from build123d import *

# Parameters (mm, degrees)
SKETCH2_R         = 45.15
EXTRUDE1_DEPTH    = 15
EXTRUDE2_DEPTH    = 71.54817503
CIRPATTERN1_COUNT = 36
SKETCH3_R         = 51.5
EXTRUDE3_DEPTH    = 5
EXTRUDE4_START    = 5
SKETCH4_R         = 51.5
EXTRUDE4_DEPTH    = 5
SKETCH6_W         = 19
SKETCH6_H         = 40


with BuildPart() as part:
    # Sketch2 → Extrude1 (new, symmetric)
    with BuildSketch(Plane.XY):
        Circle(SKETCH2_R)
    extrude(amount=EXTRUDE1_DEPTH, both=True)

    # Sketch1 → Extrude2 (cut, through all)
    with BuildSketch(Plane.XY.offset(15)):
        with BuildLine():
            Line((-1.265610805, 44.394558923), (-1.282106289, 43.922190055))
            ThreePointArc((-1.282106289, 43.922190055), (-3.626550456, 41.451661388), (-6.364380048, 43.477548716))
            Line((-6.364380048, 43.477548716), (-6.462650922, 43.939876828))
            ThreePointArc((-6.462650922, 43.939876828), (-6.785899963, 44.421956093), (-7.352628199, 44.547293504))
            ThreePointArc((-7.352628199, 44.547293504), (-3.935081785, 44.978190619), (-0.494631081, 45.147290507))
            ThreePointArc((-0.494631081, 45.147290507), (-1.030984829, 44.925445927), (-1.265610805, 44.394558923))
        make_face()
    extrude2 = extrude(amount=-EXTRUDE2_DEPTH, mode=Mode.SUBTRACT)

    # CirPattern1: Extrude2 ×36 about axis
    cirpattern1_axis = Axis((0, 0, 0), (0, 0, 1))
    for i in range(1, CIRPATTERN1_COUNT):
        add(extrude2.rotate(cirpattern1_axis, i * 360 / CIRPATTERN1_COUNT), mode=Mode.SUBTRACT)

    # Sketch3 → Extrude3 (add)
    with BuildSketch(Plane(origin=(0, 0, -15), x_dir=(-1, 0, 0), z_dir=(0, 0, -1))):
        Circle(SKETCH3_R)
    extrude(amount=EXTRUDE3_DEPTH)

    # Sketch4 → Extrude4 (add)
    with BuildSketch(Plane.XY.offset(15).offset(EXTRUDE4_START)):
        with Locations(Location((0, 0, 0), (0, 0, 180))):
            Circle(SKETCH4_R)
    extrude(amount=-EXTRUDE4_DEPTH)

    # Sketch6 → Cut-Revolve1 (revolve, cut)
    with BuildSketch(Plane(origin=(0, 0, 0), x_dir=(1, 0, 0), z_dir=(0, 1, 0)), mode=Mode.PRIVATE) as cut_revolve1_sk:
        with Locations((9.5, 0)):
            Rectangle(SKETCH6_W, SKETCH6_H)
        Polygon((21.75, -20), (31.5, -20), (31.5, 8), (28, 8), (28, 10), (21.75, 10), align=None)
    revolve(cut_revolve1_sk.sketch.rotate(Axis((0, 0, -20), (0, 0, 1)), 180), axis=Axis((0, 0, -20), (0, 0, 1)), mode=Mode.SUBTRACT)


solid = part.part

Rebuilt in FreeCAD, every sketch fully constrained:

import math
import FreeCAD as App
import Part
import Sketcher
from FreeCAD import Vector
Q = App.Units.Quantity

doc = App.newDocument("Part")
body = doc.addObject("PartDesign::Body", "Body")

# Sketch on XY plane
sketch1 = body.newObject("Sketcher::SketchObject", "Sketch")
sketch1.AttachmentSupport = (doc.getObject("XY_Plane"), [""])
sketch1.MapMode = "FlatFace"
sketch1.addGeometry(Part.Circle(Vector(0, 0, 0), Vector(0, 0, 1), 45), False)
sketch1.addConstraint([
    Sketcher.Constraint("Coincident", 0, 3, -1, 1),
    Sketcher.Constraint("Diameter", 0, 90.3),
])
pad1 = body.newObject("PartDesign::Pad", "Pad")
pad1.Profile = sketch1
pad1.Length = 30
pad1.Midplane = True

# Sketch on XY plane
sketch2 = body.newObject("Sketcher::SketchObject", "Sketch001")
sketch2.AttachmentSupport = (doc.getObject("XY_Plane"), [""])
sketch2.MapMode = "FlatFace"
sketch2.AttachmentOffset = App.Placement(Vector(0, 0, 15), App.Rotation())
sketch2.addGeometry([
    Part.LineSegment(Vector(-1.28, 43.92, 0), Vector(-1.27, 44.39, 0)),  # 0
    Part.ArcOfCircle(Part.Circle(Vector(-0.49, 44.37, 0), Vector(0, 0, 1), 0.78), math.radians(91), math.radians(178)),  # 1
    Part.ArcOfCircle(Part.Circle(Vector(0, 0, 0), Vector(0, 0, 1), 45.15), math.radians(90.63), math.radians(99.37)),  # 2
    Part.ArcOfCircle(Part.Circle(Vector(-7.23, 43.78, 0), Vector(0, 0, 1), 0.78), math.radians(12), math.radians(99)),  # 3
    Part.LineSegment(Vector(-6.46, 43.94, 0), Vector(-6.36, 43.48, 0)),  # 4
    Part.ArcOfCircle(Part.Circle(Vector(-3.85, 44.01, 0), Vector(0, 0, 1), 2.57), math.radians(-168), math.radians(-2)),  # 5
], False)
sketch2.addConstraint([
    Sketcher.Constraint("Tangent", 0, 2, 1, 2),
    Sketcher.Constraint("Tangent", 1, 1, 2, 1),
    Sketcher.Constraint("Tangent", 2, 2, 3, 2),
    Sketcher.Constraint("Tangent", 3, 1, 4, 1),
    Sketcher.Constraint("Tangent", 4, 2, 5, 1),
    Sketcher.Constraint("Tangent", 5, 2, 0, 1),
    Sketcher.Constraint("Coincident", 2, 3, -1, 1),
    Sketcher.Constraint("Equal", 1, 3),
    Sketcher.Constraint("Equal", 0, 4),
    Sketcher.Constraint("Angle", 0, Q("88 deg")),
    Sketcher.Constraint("Angle", 4, Q("-78 deg")),
    Sketcher.Constraint("Radius", 1, 0.78),
    Sketcher.Constraint("Radius", 2, 45.15),
    Sketcher.Constraint("Radius", 5, 2.57),
    Sketcher.Constraint("DistanceY", 5, 2, 1, 1, 1.2251),
])
pocket1 = body.newObject("PartDesign::Pocket", "Pocket")
pocket1.Profile = sketch2
pocket1.Type = "ThroughAll"
doc.recompute()

polarpattern = body.newObject("PartDesign::PolarPattern", "PolarPattern")
polarpattern.Originals = [pocket1]
polarpattern.Axis = (doc.getObject("Z_Axis"), [""])
polarpattern.Angle = 360
polarpattern.Occurrences = 36
body.Tip = polarpattern

# Sketch on XY plane
sketch3 = body.newObject("Sketcher::SketchObject", "Sketch002")
sketch3.AttachmentSupport = (doc.getObject("XY_Plane"), [""])
sketch3.MapMode = "FlatFace"
sketch3.AttachmentOffset = App.Placement(Vector(0, 0, -15), App.Rotation())
sketch3.addGeometry(Part.Circle(Vector(0, 0, 0), Vector(0, 0, 1), 52), False)
sketch3.addConstraint([
    Sketcher.Constraint("Coincident", 0, 3, -1, 1),
    Sketcher.Constraint("Diameter", 0, 103.0),
])
pad2 = body.newObject("PartDesign::Pad", "Pad001")
pad2.Profile = sketch3
pad2.Length = 5
pad2.Reversed = True

# Sketch on XY plane
sketch4 = body.newObject("Sketcher::SketchObject", "Sketch003")
sketch4.AttachmentSupport = (doc.getObject("XY_Plane"), [""])
sketch4.MapMode = "FlatFace"
sketch4.AttachmentOffset = App.Placement(Vector(0, 0, 20), App.Rotation())
sketch4.addGeometry(Part.Circle(Vector(0, 0, 0), Vector(0, 0, 1), 52), False)
sketch4.addConstraint([
    Sketcher.Constraint("Coincident", 0, 3, -1, 1),
    Sketcher.Constraint("Diameter", 0, 103.0),
])
pad3 = body.newObject("PartDesign::Pad", "Pad002")
pad3.Profile = sketch4
pad3.Length = 5
pad3.Reversed = True

# Sketch on XZ plane
sketch5 = body.newObject("Sketcher::SketchObject", "Sketch004")
sketch5.AttachmentSupport = (doc.getObject("XZ_Plane"), [""])
sketch5.MapMode = "FlatFace"
sketch5.addGeometry([
    Part.LineSegment(Vector(0, -20, 0), Vector(0, 20, 0)),  # 0
    Part.LineSegment(Vector(0, 20, 0), Vector(19, 20, 0)),  # 1
    Part.LineSegment(Vector(19, 20, 0), Vector(19, -20, 0)),  # 2
    Part.LineSegment(Vector(19, -20, 0), Vector(0, -20, 0)),  # 3
    Part.LineSegment(Vector(21.8, 20, 0), Vector(31.5, 20, 0)),  # 4
    Part.LineSegment(Vector(31.5, 20, 0), Vector(31.5, -8, 0)),  # 5
    Part.LineSegment(Vector(31.5, -8, 0), Vector(28, -8, 0)),  # 6
    Part.LineSegment(Vector(28, -8, 0), Vector(28, -10, 0)),  # 7
    Part.LineSegment(Vector(28, -10, 0), Vector(21.8, -10, 0)),  # 8
    Part.LineSegment(Vector(21.8, -10, 0), Vector(21.8, 20, 0)),  # 9
], False)
sketch5.addConstraint([
    Sketcher.Constraint("Coincident", 0, 2, 1, 1),
    Sketcher.Constraint("Coincident", 1, 2, 2, 1),
    Sketcher.Constraint("Coincident", 2, 2, 3, 1),
    Sketcher.Constraint("Coincident", 3, 2, 0, 1),
    Sketcher.Constraint("Coincident", 4, 2, 5, 1),
    Sketcher.Constraint("Coincident", 5, 2, 6, 1),
    Sketcher.Constraint("Coincident", 6, 2, 7, 1),
    Sketcher.Constraint("Coincident", 7, 2, 8, 1),
    Sketcher.Constraint("Coincident", 8, 2, 9, 1),
    Sketcher.Constraint("Coincident", 9, 2, 4, 1),
    Sketcher.Constraint("Vertical", 0),
    Sketcher.Constraint("Horizontal", 1),
    Sketcher.Constraint("Vertical", 2),
    Sketcher.Constraint("Horizontal", 3),
    Sketcher.Constraint("Horizontal", 4),
    Sketcher.Constraint("Vertical", 5),
    Sketcher.Constraint("Horizontal", 6),
    Sketcher.Constraint("Vertical", 7),
    Sketcher.Constraint("Horizontal", 8),
    Sketcher.Constraint("Vertical", 9),
    Sketcher.Constraint("Symmetric", 0, 2, 3, 2, -1, 1),
    Sketcher.Constraint("Horizontal", 1, 2, 4, 2),
    Sketcher.Constraint("DistanceX", 1, 1, 1, 2, 19.0),
    Sketcher.Constraint("DistanceY", 0, 1, 0, 2, 40.0),
    Sketcher.Constraint("DistanceY", 5, 2, 5, 1, 28.0),
    Sketcher.Constraint("DistanceY", 7, 2, 7, 1, 2.0),
    Sketcher.Constraint("DistanceX", 6, 2, 6, 1, 3.5),
    Sketcher.Constraint("DistanceX", -1, 1, 6, 2, 28.0),
    Sketcher.Constraint("DistanceX", 4, 1, 4, 2, 9.75),
])
groove = body.newObject("PartDesign::Groove", "Groove")
groove.Profile = sketch5
groove.ReferenceAxis = (sketch5, ["V_Axis"])
groove.Angle = 360

doc.recompute()
